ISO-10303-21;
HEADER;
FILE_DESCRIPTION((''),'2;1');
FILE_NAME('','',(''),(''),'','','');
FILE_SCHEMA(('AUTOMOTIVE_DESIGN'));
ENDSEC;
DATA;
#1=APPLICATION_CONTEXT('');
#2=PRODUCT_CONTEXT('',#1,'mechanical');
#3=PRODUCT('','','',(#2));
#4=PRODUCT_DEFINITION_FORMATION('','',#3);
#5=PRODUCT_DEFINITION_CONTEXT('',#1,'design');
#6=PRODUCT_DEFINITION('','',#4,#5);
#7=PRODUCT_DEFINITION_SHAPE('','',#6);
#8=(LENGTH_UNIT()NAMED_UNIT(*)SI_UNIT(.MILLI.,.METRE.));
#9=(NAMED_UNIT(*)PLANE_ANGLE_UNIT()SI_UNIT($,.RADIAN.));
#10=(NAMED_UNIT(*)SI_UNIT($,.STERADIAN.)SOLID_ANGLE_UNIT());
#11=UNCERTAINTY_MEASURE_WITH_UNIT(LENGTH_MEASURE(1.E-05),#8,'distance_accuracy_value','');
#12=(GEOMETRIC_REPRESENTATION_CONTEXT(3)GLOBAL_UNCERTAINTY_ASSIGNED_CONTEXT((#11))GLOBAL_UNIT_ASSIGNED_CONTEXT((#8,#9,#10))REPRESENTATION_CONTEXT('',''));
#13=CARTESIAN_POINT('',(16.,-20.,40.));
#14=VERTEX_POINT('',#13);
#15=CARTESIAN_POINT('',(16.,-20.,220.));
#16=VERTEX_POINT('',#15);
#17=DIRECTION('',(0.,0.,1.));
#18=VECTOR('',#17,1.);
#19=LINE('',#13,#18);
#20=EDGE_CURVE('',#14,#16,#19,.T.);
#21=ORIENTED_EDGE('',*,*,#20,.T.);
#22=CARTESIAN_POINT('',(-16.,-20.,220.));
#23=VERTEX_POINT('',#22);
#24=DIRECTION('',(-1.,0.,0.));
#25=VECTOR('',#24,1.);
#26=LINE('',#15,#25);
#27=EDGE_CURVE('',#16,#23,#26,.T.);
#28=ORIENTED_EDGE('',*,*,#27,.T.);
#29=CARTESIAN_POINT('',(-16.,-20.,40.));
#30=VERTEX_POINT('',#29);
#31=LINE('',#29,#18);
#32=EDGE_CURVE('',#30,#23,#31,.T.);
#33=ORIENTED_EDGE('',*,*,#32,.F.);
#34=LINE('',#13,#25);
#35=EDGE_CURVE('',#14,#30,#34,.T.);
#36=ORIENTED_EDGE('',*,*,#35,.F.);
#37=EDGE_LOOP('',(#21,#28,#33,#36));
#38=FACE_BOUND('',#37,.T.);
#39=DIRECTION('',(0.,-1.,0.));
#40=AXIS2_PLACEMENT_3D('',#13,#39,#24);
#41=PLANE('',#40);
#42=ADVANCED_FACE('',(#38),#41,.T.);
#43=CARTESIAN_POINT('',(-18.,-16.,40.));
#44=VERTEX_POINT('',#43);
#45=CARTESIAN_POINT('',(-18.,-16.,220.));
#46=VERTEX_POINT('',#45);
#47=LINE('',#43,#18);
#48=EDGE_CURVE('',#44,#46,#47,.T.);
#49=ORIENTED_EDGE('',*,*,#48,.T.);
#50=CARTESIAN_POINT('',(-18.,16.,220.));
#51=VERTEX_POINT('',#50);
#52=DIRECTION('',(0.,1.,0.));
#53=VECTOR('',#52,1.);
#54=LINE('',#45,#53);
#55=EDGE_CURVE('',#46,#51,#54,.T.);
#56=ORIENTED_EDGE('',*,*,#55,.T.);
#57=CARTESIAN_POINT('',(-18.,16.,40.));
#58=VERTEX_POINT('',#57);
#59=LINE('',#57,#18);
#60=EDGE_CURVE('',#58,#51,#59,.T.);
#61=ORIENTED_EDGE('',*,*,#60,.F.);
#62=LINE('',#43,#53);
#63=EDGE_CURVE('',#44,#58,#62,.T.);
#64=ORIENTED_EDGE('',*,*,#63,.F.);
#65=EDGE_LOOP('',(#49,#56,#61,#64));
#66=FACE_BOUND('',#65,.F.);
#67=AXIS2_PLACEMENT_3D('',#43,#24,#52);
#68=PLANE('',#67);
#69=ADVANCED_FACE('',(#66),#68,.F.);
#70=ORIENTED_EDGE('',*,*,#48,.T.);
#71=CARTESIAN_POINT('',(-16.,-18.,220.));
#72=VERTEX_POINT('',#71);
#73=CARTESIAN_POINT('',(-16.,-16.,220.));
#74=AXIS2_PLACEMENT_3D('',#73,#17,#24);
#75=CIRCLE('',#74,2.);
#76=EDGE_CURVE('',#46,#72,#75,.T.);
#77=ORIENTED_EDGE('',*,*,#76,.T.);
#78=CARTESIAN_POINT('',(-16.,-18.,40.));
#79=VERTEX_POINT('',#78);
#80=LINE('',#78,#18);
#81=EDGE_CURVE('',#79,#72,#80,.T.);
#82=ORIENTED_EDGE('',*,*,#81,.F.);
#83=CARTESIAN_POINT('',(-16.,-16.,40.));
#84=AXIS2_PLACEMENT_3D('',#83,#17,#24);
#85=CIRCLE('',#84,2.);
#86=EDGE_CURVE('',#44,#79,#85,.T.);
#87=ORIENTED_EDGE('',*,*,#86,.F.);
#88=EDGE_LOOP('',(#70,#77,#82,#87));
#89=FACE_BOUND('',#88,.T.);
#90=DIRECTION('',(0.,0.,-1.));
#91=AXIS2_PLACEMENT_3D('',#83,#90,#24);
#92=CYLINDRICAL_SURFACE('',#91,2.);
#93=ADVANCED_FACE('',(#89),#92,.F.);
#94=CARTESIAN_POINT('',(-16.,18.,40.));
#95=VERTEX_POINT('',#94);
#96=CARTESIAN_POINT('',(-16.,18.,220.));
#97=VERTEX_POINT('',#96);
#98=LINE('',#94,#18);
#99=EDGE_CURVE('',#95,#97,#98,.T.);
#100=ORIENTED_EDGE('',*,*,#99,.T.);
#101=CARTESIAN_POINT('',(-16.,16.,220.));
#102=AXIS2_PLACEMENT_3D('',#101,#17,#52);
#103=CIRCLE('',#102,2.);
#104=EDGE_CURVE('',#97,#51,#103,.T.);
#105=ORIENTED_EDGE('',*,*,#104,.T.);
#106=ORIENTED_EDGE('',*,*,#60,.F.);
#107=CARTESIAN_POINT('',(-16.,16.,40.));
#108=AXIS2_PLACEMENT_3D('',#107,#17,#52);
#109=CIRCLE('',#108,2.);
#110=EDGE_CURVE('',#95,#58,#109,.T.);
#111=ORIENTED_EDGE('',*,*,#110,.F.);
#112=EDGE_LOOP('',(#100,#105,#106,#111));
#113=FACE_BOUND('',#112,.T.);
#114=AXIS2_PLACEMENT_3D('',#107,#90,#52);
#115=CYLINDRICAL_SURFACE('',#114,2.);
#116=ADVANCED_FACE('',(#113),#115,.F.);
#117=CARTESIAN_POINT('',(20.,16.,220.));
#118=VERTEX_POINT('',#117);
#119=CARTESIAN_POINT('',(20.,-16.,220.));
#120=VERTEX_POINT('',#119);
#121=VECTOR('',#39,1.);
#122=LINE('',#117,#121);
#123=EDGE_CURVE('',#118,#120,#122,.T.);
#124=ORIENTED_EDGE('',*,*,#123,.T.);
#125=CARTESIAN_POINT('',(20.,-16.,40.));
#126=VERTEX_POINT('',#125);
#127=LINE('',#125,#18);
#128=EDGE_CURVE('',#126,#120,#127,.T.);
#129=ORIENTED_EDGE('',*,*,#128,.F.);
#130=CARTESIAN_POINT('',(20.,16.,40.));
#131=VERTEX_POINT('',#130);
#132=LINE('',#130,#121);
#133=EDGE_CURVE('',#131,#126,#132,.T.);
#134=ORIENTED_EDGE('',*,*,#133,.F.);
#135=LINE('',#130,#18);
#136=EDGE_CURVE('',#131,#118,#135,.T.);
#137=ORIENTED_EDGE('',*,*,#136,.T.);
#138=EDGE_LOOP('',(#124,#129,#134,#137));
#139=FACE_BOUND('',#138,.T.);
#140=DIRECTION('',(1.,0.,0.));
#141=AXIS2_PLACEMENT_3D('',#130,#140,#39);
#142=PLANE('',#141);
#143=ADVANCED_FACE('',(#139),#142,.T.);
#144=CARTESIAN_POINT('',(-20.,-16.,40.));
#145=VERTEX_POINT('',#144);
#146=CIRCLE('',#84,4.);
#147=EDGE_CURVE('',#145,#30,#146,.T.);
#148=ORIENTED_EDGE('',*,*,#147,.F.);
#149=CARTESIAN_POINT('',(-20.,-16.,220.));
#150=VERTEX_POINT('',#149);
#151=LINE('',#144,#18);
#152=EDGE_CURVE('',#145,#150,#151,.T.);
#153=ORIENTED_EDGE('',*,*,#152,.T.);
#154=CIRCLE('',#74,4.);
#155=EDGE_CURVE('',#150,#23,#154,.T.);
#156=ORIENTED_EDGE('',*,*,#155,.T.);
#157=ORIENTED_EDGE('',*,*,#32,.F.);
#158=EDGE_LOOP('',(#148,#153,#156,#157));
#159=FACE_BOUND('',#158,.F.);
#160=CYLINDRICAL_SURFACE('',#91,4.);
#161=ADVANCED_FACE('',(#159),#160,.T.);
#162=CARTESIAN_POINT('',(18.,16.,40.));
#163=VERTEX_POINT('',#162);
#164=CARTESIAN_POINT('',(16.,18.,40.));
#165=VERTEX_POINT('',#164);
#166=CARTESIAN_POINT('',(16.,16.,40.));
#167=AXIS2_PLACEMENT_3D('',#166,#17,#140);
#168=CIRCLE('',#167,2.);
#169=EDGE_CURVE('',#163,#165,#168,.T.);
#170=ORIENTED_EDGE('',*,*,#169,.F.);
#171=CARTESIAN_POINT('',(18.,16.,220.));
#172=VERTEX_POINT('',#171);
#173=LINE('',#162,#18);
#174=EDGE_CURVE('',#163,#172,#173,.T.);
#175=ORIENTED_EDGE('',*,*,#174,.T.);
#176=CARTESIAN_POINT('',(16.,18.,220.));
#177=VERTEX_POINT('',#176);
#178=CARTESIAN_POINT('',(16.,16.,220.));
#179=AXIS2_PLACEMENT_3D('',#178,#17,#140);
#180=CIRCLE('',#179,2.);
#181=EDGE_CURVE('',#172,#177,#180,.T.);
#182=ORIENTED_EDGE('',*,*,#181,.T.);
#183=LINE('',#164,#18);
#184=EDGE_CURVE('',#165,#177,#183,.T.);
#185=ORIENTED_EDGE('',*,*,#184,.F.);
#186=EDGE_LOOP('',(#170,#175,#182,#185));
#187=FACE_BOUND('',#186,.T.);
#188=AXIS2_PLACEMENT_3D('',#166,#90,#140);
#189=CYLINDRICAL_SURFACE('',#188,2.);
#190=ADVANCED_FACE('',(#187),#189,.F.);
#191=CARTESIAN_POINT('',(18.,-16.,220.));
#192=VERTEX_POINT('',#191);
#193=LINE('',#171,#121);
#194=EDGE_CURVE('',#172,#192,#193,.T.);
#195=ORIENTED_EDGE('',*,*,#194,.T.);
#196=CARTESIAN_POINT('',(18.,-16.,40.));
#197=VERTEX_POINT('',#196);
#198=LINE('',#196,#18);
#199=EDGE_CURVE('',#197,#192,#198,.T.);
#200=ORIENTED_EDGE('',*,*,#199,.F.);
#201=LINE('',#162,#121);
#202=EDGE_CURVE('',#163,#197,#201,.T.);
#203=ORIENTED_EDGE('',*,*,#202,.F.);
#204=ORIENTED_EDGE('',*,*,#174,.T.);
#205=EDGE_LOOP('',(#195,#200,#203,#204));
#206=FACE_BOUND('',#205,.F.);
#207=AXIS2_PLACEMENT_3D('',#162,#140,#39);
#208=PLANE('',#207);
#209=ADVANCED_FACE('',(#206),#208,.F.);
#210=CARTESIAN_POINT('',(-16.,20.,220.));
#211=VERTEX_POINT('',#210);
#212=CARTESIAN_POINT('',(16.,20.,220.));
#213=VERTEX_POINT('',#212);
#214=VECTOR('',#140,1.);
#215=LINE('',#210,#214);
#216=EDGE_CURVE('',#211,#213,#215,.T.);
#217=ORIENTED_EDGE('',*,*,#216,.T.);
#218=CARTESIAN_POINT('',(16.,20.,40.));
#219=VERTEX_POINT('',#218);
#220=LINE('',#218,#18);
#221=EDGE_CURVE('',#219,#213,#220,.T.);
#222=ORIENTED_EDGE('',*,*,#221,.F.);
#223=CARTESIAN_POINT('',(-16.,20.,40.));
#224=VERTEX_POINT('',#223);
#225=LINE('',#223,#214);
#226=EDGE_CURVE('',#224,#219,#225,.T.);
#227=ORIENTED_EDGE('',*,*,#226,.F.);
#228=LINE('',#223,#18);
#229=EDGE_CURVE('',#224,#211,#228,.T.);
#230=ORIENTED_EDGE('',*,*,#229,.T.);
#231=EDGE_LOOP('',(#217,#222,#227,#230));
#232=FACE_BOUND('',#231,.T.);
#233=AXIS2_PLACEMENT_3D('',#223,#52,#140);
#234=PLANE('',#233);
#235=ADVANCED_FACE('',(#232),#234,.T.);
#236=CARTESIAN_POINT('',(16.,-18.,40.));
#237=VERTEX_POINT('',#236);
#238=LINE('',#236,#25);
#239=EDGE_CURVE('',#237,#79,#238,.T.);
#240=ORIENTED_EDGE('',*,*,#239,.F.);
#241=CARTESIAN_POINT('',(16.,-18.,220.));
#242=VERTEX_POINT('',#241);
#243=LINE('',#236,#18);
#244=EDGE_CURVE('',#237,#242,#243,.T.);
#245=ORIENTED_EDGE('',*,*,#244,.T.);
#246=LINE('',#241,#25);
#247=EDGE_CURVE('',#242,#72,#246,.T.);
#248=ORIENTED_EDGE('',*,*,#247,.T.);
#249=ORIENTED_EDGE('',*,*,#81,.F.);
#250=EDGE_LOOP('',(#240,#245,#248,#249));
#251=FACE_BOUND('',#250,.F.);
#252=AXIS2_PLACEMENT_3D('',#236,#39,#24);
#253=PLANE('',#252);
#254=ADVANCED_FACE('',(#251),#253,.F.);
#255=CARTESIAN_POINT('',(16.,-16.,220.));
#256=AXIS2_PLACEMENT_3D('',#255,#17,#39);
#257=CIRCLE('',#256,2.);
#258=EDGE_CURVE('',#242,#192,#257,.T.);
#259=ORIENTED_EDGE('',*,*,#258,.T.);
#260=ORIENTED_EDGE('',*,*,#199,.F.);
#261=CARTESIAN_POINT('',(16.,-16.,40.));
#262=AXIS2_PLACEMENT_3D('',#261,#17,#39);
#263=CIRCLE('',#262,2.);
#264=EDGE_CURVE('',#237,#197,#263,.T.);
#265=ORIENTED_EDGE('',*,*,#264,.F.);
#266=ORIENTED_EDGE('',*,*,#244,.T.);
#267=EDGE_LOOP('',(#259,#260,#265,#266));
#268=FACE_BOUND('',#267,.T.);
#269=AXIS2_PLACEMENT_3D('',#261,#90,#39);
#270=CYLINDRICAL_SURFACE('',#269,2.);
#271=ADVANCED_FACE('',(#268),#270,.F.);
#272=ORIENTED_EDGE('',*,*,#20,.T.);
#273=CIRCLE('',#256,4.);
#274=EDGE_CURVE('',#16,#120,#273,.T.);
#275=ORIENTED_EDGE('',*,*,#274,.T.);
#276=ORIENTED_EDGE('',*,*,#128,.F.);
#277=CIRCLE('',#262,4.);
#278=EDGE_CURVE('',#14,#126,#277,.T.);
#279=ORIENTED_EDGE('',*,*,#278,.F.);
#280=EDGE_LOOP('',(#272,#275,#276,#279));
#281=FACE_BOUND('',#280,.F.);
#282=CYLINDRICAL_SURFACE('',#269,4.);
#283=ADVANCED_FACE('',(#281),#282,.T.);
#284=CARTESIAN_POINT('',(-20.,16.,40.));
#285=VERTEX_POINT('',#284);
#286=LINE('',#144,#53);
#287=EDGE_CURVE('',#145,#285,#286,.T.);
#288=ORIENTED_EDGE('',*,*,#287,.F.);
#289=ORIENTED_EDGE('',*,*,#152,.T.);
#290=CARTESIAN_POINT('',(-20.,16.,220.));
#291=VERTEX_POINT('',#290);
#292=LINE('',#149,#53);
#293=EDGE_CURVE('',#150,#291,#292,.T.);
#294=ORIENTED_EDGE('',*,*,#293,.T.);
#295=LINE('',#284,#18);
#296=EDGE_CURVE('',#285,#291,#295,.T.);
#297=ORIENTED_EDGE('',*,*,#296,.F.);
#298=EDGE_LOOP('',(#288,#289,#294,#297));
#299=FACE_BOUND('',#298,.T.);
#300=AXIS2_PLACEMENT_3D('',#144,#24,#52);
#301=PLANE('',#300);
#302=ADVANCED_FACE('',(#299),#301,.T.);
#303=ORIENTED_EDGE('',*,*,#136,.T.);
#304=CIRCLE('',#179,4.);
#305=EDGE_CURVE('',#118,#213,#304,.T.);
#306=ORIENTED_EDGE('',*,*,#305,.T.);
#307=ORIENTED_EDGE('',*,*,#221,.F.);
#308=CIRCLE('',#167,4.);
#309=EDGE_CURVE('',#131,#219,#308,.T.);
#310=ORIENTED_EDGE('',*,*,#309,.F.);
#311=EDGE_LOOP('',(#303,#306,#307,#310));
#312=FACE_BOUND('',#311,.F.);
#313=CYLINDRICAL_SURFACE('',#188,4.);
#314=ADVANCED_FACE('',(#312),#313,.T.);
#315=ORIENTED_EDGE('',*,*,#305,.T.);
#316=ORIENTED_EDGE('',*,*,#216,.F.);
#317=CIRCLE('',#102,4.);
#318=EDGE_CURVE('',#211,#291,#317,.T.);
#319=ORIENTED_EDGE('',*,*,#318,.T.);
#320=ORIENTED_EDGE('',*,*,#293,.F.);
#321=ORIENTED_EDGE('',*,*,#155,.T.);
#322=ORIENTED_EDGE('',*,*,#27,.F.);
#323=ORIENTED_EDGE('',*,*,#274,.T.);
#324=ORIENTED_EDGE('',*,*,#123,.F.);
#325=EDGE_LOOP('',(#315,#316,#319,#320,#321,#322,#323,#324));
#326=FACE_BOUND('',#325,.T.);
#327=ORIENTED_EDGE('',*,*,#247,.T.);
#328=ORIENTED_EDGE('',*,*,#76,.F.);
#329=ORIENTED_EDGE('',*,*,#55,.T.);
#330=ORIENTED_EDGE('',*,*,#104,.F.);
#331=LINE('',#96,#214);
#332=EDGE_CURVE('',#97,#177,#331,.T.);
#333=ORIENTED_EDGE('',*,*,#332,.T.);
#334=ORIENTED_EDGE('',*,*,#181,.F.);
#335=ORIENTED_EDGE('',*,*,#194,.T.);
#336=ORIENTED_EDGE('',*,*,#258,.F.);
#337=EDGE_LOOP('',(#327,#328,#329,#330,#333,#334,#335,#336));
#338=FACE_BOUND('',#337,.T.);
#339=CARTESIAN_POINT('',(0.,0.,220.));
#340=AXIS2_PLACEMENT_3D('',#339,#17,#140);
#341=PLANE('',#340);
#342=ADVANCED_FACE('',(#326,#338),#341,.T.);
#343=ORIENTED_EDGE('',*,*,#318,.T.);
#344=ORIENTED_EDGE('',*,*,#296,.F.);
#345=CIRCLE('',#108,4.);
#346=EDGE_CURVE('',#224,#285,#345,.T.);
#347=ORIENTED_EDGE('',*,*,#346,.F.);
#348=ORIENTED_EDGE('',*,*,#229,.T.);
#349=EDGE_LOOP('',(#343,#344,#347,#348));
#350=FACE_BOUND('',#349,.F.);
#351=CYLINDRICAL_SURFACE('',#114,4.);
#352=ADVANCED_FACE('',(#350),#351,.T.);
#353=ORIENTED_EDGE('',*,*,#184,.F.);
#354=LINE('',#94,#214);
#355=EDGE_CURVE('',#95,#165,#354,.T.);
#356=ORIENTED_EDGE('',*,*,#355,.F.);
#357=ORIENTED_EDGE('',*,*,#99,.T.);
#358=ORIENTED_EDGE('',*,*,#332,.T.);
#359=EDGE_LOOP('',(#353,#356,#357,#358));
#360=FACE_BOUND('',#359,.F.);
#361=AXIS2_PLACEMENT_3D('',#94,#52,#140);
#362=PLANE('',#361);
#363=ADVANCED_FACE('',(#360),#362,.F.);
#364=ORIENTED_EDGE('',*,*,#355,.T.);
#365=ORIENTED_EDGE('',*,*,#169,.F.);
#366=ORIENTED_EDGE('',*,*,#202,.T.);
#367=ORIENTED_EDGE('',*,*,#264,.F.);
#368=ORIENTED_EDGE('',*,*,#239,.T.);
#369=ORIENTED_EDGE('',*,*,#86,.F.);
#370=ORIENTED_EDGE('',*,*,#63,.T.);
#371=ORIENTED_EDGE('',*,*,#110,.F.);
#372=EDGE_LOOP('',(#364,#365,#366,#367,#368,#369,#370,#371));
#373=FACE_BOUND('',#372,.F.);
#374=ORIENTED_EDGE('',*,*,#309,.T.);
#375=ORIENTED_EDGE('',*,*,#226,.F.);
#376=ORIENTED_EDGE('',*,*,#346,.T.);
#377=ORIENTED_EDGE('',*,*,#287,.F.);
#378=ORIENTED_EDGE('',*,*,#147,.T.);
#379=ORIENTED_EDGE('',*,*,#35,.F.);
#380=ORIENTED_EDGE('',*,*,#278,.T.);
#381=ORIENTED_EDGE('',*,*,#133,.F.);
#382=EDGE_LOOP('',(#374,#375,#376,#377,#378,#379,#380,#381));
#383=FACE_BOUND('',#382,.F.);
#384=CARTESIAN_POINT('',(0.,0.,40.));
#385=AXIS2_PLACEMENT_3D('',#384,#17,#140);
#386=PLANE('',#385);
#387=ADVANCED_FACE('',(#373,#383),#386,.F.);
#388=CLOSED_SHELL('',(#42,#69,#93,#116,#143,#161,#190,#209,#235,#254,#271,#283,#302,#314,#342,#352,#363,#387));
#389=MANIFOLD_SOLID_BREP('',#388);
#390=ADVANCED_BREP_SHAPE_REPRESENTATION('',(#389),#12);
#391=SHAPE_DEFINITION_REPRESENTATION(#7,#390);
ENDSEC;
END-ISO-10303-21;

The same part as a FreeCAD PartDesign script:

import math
import FreeCAD as App
import Part
import Sketcher

V = App.Vector
Q = App.Units.Quantity

doc = App.newDocument("Part")
body = doc.addObject("PartDesign::Body", "Body")

# Sketch on XY plane
sketch1 = doc.addObject("Sketcher::SketchObject", "Sketch")
body.addObject(sketch1)
sketch1.AttachmentSupport = (doc.XY_Plane, [""])
sketch1.MapMode = "FlatFace"
sketch1.AttachmentOffset = App.Placement(V(0, 0, 40), App.Rotation())
sketch1.addGeometry([
    Part.LineSegment(V(-20, 16, 0), V(-20, -16, 0)),  # 0
    Part.ArcOfCircle(Part.Circle(V(-16, -16, 0), V(0, 0, 1), 4), math.radians(180), math.radians(270)),  # 1
    Part.LineSegment(V(-16, -20, 0), V(16, -20, 0)),  # 2
    Part.ArcOfCircle(Part.Circle(V(16, -16, 0), V(0, 0, 1), 4), math.radians(-90), math.radians(0)),  # 3
    Part.LineSegment(V(20, -16, 0), V(20, 16, 0)),  # 4
    Part.ArcOfCircle(Part.Circle(V(16, 16, 0), V(0, 0, 1), 4), math.radians(0), math.radians(90)),  # 5
    Part.LineSegment(V(16, 20, 0), V(-16, 20, 0)),  # 6
    Part.ArcOfCircle(Part.Circle(V(-16, 16, 0), V(0, 0, 1), 4), math.radians(90), math.radians(180)),  # 7
    Part.ArcOfCircle(Part.Circle(V(-16, 16, 0), V(0, 0, 1), 2), math.radians(90), math.radians(180)),  # 8
    Part.LineSegment(V(-16, 18, 0), V(16, 18, 0)),  # 9
    Part.ArcOfCircle(Part.Circle(V(16, 16, 0), V(0, 0, 1), 2), math.radians(0), math.radians(90)),  # 10
    Part.LineSegment(V(18, 16, 0), V(18, -16, 0)),  # 11
    Part.ArcOfCircle(Part.Circle(V(16, -16, 0), V(0, 0, 1), 2), math.radians(-90), math.radians(0)),  # 12
    Part.LineSegment(V(16, -18, 0), V(-16, -18, 0)),  # 13
    Part.ArcOfCircle(Part.Circle(V(-16, -16, 0), V(0, 0, 1), 2), math.radians(180), math.radians(270)),  # 14
    Part.LineSegment(V(-18, -16, 0), V(-18, 16, 0)),  # 15
], False)
sketch1.addConstraint([
    Sketcher.Constraint("Tangent", 0, 2, 1, 1),
    Sketcher.Constraint("Tangent", 1, 2, 2, 1),
    Sketcher.Constraint("Tangent", 2, 2, 3, 1),
    Sketcher.Constraint("Tangent", 3, 2, 4, 1),
    Sketcher.Constraint("Tangent", 4, 2, 5, 1),
    Sketcher.Constraint("Tangent", 5, 2, 6, 1),
    Sketcher.Constraint("Tangent", 6, 2, 7, 1),
    Sketcher.Constraint("Tangent", 7, 2, 0, 1),
    Sketcher.Constraint("Tangent", 8, 1, 9, 1),
    Sketcher.Constraint("Tangent", 9, 2, 10, 2),
    Sketcher.Constraint("Tangent", 10, 1, 11, 1),
    Sketcher.Constraint("Tangent", 11, 2, 12, 2),
    Sketcher.Constraint("Tangent", 12, 1, 13, 1),
    Sketcher.Constraint("Tangent", 13, 2, 14, 2),
    Sketcher.Constraint("Tangent", 14, 1, 15, 1),
    Sketcher.Constraint("Tangent", 15, 2, 8, 2),
    Sketcher.Constraint("Vertical", 0),
    Sketcher.Constraint("Horizontal", 2),
    Sketcher.Constraint("Vertical", 4),
    Sketcher.Constraint("Horizontal", 6),
    Sketcher.Constraint("Horizontal", 9),
    Sketcher.Constraint("Vertical", 11),
    Sketcher.Constraint("Horizontal", 13),
    Sketcher.Constraint("Vertical", 15),
    Sketcher.Constraint("Coincident", 8, 3, 7, 3),
    Sketcher.Constraint("Coincident", 10, 3, 5, 3),
    Sketcher.Constraint("Coincident", 12, 3, 3, 3),
    Sketcher.Constraint("Equal", 1, 3),
    Sketcher.Constraint("Equal", 3, 5),
    Sketcher.Constraint("Equal", 5, 7),
    Sketcher.Constraint("Equal", 12, 14),
    Sketcher.Constraint("Symmetric", 1, 3, 5, 3, -1, 1),
    Sketcher.Constraint("Equal", 13, 0),
    Sketcher.Constraint("Radius", 1, Q("4 mm")),
    Sketcher.Constraint("Radius", 8, Q("2 mm")),
    Sketcher.Constraint("DistanceX", 0, 2, -1, 1, Q("20 mm")),
])
pad1 = doc.addObject("PartDesign::Pad", "Pad")
body.addObject(pad1)
pad1.Profile = sketch1
pad1.Length = 180

doc.recompute()
